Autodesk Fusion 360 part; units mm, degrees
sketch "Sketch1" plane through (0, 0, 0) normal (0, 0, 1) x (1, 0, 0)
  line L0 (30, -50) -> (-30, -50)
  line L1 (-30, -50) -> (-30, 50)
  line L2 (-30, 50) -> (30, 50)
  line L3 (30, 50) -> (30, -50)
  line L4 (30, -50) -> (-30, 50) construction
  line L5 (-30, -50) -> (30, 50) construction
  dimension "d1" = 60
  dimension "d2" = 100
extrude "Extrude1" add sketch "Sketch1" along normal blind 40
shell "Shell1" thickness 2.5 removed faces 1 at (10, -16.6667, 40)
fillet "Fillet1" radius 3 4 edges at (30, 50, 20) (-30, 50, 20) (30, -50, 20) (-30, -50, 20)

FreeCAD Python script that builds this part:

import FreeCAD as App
import Part
import Sketcher


def edges_at(feature, points):
    """Names of the edges that pass closest to the given points."""
    edges = feature.Shape.Edges
    near = lambda p: min(range(len(edges)), key=lambda i: edges[i].distToShape(Part.Vertex(*p))[0])
    return sorted({f"Edge{near(p) + 1}" for p in points})


def faces_at(feature, points):
    """Names of the faces that lie closest to the given points."""
    faces = feature.Shape.Faces
    near = lambda p: min(range(len(faces)), key=lambda i: faces[i].distToShape(Part.Vertex(*p))[0])
    return sorted({f"Face{near(p) + 1}" for p in points})


def add_polygon(sketch, points):
    """Adds a closed chain of lines whose ends are joined by coincident constraints."""
    first, n = sketch.GeometryCount, len(points)
    for a, b in zip(points, points[1:] + points[:1]):
        sketch.addGeometry(Part.LineSegment(App.Vector(*a, 0), App.Vector(*b, 0)), False)
    for i in range(n):
        sketch.addConstraint(Sketcher.Constraint("Coincident", first + i, 2, first + (i + 1) % n, 1))

doc = App.newDocument("Part")
body = doc.addObject("PartDesign::Body", "Body")

# Sketch on XY plane
sketch1 = body.newObject("Sketcher::SketchObject", "Sketch")
sketch1.AttachmentSupport = (doc.getObject("XY_Plane"), [""])
sketch1.MapMode = "FlatFace"
add_polygon(sketch1, [(-30, -50), (30, -50), (30, 50), (-30, 50)])  # lines 0-3
sketch1.addConstraint(Sketcher.Constraint("Horizontal", 0))
sketch1.addConstraint(Sketcher.Constraint("Vertical", 1))
sketch1.addConstraint(Sketcher.Constraint("Horizontal", 2))
sketch1.addConstraint(Sketcher.Constraint("Vertical", 3))
sketch1.addConstraint(Sketcher.Constraint("Symmetric", 0, 2, 2, 2, -1, 1))
sketch1.addConstraint(Sketcher.Constraint("DistanceX", 0, 1, 0, 2, 60.0))
sketch1.addConstraint(Sketcher.Constraint("DistanceY", 1, 1, 1, 2, 100.0))
pad1 = body.newObject("PartDesign::Pad", "Pad")
pad1.Profile = sketch1
pad1.Length = 40
doc.recompute()

thickness = body.newObject("PartDesign::Thickness", "Thickness")
thickness.Base = (pad1, faces_at(pad1, [(10, -16.667, 40)]))
thickness.Value = 2.5
thickness.Reversed = True
thickness.Join = "Intersection"
doc.recompute()

fillet = body.newObject("PartDesign::Fillet", "Fillet")
fillet.Base = (thickness, edges_at(thickness, [
    (30, 50, 20),
    (-30, 50, 20),
    (30, -50, 20),
    (-30, -50, 20),
]))
fillet.Radius = 3

doc.recompute()
